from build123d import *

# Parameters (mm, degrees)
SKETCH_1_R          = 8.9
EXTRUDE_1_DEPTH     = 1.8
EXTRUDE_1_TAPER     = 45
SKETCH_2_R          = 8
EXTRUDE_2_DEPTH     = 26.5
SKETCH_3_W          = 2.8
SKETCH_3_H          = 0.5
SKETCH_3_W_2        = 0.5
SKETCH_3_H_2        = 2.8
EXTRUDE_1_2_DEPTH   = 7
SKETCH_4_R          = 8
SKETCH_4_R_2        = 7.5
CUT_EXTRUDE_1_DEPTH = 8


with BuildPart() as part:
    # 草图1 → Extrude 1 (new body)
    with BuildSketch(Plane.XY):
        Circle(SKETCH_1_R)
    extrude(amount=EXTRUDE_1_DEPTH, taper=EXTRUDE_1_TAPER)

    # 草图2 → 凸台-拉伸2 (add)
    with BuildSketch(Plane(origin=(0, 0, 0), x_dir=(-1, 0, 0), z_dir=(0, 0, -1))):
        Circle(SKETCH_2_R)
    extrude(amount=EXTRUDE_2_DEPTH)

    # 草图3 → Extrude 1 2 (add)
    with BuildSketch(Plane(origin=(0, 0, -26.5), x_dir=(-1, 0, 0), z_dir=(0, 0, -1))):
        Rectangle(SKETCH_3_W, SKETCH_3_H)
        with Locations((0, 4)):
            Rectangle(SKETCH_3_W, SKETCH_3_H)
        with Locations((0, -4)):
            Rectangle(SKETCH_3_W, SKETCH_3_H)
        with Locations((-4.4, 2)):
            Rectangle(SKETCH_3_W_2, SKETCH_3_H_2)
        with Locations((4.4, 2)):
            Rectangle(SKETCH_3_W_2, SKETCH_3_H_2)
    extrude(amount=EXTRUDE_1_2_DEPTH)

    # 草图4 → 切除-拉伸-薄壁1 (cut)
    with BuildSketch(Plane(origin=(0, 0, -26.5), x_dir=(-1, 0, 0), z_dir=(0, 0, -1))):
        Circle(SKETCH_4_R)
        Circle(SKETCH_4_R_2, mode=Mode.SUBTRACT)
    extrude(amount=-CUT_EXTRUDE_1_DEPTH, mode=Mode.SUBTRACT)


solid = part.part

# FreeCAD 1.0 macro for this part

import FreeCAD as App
import Part
import Sketcher

V = App.Vector


def add_polygon(sketch, points):
    """Adds a closed chain of lines whose ends are joined by coincident constraints."""
    first, n = sketch.GeometryCount, len(points)
    for a, b in zip(points, points[1:] + points[:1]):
        sketch.addGeometry(Part.LineSegment(App.Vector(*a, 0), App.Vector(*b, 0)), False)
    for i in range(n):
        sketch.addConstraint(Sketcher.Constraint("Coincident", first + i, 2, first + (i + 1) % n, 1))

doc = App.newDocument("Part")
body = doc.addObject("PartDesign::Body", "Body")

# Sketch on XY plane
sketch1 = body.newObject("Sketcher::SketchObject", "Sketch")
sketch1.AttachmentSupport = (doc.getObject("XY_Plane"), [""])
sketch1.MapMode = "FlatFace"
sketch1.addGeometry(Part.Circle(V(0, 0, 0), V(0, 0, 1), 9), False)
sketch1.addConstraint([
    Sketcher.Constraint("Coincident", 0, 3, -1, 1),
    Sketcher.Constraint("Diameter", 0, 17.8),
])
pad1 = body.newObject("PartDesign::Pad", "Pad")
pad1.Profile = sketch1
pad1.Length = 1.8
pad1.TaperAngle = -45

# Sketch on XY plane
sketch2 = body.newObject("Sketcher::SketchObject", "Sketch001")
sketch2.AttachmentSupport = (doc.getObject("XY_Plane"), [""])
sketch2.MapMode = "FlatFace"
sketch2.addGeometry(Part.Circle(V(0, 0, 0), V(0, 0, 1), 8), False)
sketch2.addConstraint([
    Sketcher.Constraint("Coincident", 0, 3, -1, 1),
    Sketcher.Constraint("Diameter", 0, 16.0),
])
pad2 = body.newObject("PartDesign::Pad", "Pad001")
pad2.Profile = sketch2
pad2.Length = 26.5
pad2.Reversed = True

# Sketch on XY plane
sketch3 = body.newObject("Sketcher::SketchObject", "Sketch002")
sketch3.AttachmentSupport = (doc.getObject("XY_Plane"), [""])
sketch3.MapMode = "FlatFace"
sketch3.AttachmentOffset = App.Placement(V(0, 0, -26.5), App.Rotation())
add_polygon(sketch3, [(1.4, 0.2), (1.4, -0.2), (-1.4, -0.2), (-1.4, 0.2)])  # lines 0-3
add_polygon(sketch3, [(1.4, 4.2), (1.4, 3.8), (-1.4, 3.8), (-1.4, 4.2)])  # lines 4-7
add_polygon(sketch3, [(1.4, -3.8), (1.4, -4.2), (-1.4, -4.2), (-1.4, -3.8)])  # lines 8-11
add_polygon(sketch3, [(4.7, 3.4), (4.7, 0.6), (4.2, 0.6), (4.2, 3.4)])  # lines 12-15
add_polygon(sketch3, [(-4.2, 3.4), (-4.2, 0.6), (-4.7, 0.6), (-4.7, 3.4)])  # lines 16-19
sketch3.addConstraint([
    Sketcher.Constraint("Vertical", 0),
    Sketcher.Constraint("Horizontal", 1),
    Sketcher.Constraint("Vertical", 2),
    Sketcher.Constraint("Horizontal", 3),
    Sketcher.Constraint("Vertical", 4),
    Sketcher.Constraint("Horizontal", 5),
    Sketcher.Constraint("Vertical", 6),
    Sketcher.Constraint("Horizontal", 7),
    Sketcher.Constraint("Vertical", 8),
    Sketcher.Constraint("Horizontal", 9),
    Sketcher.Constraint("Vertical", 10),
    Sketcher.Constraint("Horizontal", 11),
    Sketcher.Constraint("Vertical", 12),
    Sketcher.Constraint("Horizontal", 13),
    Sketcher.Constraint("Vertical", 14),
    Sketcher.Constraint("Horizontal", 15),
    Sketcher.Constraint("Vertical", 16),
    Sketcher.Constraint("Horizontal", 17),
    Sketcher.Constraint("Vertical", 18),
    Sketcher.Constraint("Horizontal", 19),
    Sketcher.Constraint("Symmetric", 0, 2, 2, 2, -1, 1),
    Sketcher.Constraint("Symmetric", 6, 2, 8, 2, -1, 1),
    Sketcher.Constraint("Symmetric", 4, 2, 10, 2, -1, 1),
    Sketcher.Constraint("Symmetric", 13, 2, 16, 2, -2),
    Sketcher.Constraint("Symmetric", 15, 2, 18, 2, -2),
    Sketcher.Constraint("Vertical", 3, 2, 4, 2),
    Sketcher.Constraint("Vertical", 2, 2, 5, 2),
    Sketcher.Constraint("Equal", 19, 0),
    Sketcher.Constraint("Equal", 2, 4),
    Sketcher.Constraint("Equal", 11, 12),
    Sketcher.Constraint("DistanceX", 1, 2, 1, 1, 2.8),
    Sketcher.Constraint("DistanceX", 13, 2, 13, 1, 0.5),
    Sketcher.Constraint("DistanceY", 0, 2, 4, 2, 4.0),
    Sketcher.Constraint("DistanceY", -1, 1, 12, 2, 0.6),
    Sketcher.Constraint("DistanceX", -1, 1, 12, 2, 4.65),
])
pad3 = body.newObject("PartDesign::Pad", "Pad002")
pad3.Profile = sketch3
pad3.Length = 7
pad3.Reversed = True

# Sketch on XY plane
sketch4 = body.newObject("Sketcher::SketchObject", "Sketch003")
sketch4.AttachmentSupport = (doc.getObject("XY_Plane"), [""])
sketch4.MapMode = "FlatFace"
sketch4.AttachmentOffset = App.Placement(V(0, 0, -26.5), App.Rotation())
sketch4.addGeometry([
    Part.Circle(V(0, 0, 0), V(0, 0, 1), 8),
    Part.Circle(V(0, 0, 0), V(0, 0, 1), 8),
], False)
sketch4.addConstraint([
    Sketcher.Constraint("Coincident", 0, 3, -1, 1),
    Sketcher.Constraint("Coincident", 1, 3, -1, 1),
    Sketcher.Constraint("Diameter", 0, 16.0),
    Sketcher.Constraint("Diameter", 1, 15.0),
])
pocket1 = body.newObject("PartDesign::Pocket", "Pocket")
pocket1.Profile = sketch4
pocket1.Length = 8
pocket1.Reversed = True

doc.recompute()
